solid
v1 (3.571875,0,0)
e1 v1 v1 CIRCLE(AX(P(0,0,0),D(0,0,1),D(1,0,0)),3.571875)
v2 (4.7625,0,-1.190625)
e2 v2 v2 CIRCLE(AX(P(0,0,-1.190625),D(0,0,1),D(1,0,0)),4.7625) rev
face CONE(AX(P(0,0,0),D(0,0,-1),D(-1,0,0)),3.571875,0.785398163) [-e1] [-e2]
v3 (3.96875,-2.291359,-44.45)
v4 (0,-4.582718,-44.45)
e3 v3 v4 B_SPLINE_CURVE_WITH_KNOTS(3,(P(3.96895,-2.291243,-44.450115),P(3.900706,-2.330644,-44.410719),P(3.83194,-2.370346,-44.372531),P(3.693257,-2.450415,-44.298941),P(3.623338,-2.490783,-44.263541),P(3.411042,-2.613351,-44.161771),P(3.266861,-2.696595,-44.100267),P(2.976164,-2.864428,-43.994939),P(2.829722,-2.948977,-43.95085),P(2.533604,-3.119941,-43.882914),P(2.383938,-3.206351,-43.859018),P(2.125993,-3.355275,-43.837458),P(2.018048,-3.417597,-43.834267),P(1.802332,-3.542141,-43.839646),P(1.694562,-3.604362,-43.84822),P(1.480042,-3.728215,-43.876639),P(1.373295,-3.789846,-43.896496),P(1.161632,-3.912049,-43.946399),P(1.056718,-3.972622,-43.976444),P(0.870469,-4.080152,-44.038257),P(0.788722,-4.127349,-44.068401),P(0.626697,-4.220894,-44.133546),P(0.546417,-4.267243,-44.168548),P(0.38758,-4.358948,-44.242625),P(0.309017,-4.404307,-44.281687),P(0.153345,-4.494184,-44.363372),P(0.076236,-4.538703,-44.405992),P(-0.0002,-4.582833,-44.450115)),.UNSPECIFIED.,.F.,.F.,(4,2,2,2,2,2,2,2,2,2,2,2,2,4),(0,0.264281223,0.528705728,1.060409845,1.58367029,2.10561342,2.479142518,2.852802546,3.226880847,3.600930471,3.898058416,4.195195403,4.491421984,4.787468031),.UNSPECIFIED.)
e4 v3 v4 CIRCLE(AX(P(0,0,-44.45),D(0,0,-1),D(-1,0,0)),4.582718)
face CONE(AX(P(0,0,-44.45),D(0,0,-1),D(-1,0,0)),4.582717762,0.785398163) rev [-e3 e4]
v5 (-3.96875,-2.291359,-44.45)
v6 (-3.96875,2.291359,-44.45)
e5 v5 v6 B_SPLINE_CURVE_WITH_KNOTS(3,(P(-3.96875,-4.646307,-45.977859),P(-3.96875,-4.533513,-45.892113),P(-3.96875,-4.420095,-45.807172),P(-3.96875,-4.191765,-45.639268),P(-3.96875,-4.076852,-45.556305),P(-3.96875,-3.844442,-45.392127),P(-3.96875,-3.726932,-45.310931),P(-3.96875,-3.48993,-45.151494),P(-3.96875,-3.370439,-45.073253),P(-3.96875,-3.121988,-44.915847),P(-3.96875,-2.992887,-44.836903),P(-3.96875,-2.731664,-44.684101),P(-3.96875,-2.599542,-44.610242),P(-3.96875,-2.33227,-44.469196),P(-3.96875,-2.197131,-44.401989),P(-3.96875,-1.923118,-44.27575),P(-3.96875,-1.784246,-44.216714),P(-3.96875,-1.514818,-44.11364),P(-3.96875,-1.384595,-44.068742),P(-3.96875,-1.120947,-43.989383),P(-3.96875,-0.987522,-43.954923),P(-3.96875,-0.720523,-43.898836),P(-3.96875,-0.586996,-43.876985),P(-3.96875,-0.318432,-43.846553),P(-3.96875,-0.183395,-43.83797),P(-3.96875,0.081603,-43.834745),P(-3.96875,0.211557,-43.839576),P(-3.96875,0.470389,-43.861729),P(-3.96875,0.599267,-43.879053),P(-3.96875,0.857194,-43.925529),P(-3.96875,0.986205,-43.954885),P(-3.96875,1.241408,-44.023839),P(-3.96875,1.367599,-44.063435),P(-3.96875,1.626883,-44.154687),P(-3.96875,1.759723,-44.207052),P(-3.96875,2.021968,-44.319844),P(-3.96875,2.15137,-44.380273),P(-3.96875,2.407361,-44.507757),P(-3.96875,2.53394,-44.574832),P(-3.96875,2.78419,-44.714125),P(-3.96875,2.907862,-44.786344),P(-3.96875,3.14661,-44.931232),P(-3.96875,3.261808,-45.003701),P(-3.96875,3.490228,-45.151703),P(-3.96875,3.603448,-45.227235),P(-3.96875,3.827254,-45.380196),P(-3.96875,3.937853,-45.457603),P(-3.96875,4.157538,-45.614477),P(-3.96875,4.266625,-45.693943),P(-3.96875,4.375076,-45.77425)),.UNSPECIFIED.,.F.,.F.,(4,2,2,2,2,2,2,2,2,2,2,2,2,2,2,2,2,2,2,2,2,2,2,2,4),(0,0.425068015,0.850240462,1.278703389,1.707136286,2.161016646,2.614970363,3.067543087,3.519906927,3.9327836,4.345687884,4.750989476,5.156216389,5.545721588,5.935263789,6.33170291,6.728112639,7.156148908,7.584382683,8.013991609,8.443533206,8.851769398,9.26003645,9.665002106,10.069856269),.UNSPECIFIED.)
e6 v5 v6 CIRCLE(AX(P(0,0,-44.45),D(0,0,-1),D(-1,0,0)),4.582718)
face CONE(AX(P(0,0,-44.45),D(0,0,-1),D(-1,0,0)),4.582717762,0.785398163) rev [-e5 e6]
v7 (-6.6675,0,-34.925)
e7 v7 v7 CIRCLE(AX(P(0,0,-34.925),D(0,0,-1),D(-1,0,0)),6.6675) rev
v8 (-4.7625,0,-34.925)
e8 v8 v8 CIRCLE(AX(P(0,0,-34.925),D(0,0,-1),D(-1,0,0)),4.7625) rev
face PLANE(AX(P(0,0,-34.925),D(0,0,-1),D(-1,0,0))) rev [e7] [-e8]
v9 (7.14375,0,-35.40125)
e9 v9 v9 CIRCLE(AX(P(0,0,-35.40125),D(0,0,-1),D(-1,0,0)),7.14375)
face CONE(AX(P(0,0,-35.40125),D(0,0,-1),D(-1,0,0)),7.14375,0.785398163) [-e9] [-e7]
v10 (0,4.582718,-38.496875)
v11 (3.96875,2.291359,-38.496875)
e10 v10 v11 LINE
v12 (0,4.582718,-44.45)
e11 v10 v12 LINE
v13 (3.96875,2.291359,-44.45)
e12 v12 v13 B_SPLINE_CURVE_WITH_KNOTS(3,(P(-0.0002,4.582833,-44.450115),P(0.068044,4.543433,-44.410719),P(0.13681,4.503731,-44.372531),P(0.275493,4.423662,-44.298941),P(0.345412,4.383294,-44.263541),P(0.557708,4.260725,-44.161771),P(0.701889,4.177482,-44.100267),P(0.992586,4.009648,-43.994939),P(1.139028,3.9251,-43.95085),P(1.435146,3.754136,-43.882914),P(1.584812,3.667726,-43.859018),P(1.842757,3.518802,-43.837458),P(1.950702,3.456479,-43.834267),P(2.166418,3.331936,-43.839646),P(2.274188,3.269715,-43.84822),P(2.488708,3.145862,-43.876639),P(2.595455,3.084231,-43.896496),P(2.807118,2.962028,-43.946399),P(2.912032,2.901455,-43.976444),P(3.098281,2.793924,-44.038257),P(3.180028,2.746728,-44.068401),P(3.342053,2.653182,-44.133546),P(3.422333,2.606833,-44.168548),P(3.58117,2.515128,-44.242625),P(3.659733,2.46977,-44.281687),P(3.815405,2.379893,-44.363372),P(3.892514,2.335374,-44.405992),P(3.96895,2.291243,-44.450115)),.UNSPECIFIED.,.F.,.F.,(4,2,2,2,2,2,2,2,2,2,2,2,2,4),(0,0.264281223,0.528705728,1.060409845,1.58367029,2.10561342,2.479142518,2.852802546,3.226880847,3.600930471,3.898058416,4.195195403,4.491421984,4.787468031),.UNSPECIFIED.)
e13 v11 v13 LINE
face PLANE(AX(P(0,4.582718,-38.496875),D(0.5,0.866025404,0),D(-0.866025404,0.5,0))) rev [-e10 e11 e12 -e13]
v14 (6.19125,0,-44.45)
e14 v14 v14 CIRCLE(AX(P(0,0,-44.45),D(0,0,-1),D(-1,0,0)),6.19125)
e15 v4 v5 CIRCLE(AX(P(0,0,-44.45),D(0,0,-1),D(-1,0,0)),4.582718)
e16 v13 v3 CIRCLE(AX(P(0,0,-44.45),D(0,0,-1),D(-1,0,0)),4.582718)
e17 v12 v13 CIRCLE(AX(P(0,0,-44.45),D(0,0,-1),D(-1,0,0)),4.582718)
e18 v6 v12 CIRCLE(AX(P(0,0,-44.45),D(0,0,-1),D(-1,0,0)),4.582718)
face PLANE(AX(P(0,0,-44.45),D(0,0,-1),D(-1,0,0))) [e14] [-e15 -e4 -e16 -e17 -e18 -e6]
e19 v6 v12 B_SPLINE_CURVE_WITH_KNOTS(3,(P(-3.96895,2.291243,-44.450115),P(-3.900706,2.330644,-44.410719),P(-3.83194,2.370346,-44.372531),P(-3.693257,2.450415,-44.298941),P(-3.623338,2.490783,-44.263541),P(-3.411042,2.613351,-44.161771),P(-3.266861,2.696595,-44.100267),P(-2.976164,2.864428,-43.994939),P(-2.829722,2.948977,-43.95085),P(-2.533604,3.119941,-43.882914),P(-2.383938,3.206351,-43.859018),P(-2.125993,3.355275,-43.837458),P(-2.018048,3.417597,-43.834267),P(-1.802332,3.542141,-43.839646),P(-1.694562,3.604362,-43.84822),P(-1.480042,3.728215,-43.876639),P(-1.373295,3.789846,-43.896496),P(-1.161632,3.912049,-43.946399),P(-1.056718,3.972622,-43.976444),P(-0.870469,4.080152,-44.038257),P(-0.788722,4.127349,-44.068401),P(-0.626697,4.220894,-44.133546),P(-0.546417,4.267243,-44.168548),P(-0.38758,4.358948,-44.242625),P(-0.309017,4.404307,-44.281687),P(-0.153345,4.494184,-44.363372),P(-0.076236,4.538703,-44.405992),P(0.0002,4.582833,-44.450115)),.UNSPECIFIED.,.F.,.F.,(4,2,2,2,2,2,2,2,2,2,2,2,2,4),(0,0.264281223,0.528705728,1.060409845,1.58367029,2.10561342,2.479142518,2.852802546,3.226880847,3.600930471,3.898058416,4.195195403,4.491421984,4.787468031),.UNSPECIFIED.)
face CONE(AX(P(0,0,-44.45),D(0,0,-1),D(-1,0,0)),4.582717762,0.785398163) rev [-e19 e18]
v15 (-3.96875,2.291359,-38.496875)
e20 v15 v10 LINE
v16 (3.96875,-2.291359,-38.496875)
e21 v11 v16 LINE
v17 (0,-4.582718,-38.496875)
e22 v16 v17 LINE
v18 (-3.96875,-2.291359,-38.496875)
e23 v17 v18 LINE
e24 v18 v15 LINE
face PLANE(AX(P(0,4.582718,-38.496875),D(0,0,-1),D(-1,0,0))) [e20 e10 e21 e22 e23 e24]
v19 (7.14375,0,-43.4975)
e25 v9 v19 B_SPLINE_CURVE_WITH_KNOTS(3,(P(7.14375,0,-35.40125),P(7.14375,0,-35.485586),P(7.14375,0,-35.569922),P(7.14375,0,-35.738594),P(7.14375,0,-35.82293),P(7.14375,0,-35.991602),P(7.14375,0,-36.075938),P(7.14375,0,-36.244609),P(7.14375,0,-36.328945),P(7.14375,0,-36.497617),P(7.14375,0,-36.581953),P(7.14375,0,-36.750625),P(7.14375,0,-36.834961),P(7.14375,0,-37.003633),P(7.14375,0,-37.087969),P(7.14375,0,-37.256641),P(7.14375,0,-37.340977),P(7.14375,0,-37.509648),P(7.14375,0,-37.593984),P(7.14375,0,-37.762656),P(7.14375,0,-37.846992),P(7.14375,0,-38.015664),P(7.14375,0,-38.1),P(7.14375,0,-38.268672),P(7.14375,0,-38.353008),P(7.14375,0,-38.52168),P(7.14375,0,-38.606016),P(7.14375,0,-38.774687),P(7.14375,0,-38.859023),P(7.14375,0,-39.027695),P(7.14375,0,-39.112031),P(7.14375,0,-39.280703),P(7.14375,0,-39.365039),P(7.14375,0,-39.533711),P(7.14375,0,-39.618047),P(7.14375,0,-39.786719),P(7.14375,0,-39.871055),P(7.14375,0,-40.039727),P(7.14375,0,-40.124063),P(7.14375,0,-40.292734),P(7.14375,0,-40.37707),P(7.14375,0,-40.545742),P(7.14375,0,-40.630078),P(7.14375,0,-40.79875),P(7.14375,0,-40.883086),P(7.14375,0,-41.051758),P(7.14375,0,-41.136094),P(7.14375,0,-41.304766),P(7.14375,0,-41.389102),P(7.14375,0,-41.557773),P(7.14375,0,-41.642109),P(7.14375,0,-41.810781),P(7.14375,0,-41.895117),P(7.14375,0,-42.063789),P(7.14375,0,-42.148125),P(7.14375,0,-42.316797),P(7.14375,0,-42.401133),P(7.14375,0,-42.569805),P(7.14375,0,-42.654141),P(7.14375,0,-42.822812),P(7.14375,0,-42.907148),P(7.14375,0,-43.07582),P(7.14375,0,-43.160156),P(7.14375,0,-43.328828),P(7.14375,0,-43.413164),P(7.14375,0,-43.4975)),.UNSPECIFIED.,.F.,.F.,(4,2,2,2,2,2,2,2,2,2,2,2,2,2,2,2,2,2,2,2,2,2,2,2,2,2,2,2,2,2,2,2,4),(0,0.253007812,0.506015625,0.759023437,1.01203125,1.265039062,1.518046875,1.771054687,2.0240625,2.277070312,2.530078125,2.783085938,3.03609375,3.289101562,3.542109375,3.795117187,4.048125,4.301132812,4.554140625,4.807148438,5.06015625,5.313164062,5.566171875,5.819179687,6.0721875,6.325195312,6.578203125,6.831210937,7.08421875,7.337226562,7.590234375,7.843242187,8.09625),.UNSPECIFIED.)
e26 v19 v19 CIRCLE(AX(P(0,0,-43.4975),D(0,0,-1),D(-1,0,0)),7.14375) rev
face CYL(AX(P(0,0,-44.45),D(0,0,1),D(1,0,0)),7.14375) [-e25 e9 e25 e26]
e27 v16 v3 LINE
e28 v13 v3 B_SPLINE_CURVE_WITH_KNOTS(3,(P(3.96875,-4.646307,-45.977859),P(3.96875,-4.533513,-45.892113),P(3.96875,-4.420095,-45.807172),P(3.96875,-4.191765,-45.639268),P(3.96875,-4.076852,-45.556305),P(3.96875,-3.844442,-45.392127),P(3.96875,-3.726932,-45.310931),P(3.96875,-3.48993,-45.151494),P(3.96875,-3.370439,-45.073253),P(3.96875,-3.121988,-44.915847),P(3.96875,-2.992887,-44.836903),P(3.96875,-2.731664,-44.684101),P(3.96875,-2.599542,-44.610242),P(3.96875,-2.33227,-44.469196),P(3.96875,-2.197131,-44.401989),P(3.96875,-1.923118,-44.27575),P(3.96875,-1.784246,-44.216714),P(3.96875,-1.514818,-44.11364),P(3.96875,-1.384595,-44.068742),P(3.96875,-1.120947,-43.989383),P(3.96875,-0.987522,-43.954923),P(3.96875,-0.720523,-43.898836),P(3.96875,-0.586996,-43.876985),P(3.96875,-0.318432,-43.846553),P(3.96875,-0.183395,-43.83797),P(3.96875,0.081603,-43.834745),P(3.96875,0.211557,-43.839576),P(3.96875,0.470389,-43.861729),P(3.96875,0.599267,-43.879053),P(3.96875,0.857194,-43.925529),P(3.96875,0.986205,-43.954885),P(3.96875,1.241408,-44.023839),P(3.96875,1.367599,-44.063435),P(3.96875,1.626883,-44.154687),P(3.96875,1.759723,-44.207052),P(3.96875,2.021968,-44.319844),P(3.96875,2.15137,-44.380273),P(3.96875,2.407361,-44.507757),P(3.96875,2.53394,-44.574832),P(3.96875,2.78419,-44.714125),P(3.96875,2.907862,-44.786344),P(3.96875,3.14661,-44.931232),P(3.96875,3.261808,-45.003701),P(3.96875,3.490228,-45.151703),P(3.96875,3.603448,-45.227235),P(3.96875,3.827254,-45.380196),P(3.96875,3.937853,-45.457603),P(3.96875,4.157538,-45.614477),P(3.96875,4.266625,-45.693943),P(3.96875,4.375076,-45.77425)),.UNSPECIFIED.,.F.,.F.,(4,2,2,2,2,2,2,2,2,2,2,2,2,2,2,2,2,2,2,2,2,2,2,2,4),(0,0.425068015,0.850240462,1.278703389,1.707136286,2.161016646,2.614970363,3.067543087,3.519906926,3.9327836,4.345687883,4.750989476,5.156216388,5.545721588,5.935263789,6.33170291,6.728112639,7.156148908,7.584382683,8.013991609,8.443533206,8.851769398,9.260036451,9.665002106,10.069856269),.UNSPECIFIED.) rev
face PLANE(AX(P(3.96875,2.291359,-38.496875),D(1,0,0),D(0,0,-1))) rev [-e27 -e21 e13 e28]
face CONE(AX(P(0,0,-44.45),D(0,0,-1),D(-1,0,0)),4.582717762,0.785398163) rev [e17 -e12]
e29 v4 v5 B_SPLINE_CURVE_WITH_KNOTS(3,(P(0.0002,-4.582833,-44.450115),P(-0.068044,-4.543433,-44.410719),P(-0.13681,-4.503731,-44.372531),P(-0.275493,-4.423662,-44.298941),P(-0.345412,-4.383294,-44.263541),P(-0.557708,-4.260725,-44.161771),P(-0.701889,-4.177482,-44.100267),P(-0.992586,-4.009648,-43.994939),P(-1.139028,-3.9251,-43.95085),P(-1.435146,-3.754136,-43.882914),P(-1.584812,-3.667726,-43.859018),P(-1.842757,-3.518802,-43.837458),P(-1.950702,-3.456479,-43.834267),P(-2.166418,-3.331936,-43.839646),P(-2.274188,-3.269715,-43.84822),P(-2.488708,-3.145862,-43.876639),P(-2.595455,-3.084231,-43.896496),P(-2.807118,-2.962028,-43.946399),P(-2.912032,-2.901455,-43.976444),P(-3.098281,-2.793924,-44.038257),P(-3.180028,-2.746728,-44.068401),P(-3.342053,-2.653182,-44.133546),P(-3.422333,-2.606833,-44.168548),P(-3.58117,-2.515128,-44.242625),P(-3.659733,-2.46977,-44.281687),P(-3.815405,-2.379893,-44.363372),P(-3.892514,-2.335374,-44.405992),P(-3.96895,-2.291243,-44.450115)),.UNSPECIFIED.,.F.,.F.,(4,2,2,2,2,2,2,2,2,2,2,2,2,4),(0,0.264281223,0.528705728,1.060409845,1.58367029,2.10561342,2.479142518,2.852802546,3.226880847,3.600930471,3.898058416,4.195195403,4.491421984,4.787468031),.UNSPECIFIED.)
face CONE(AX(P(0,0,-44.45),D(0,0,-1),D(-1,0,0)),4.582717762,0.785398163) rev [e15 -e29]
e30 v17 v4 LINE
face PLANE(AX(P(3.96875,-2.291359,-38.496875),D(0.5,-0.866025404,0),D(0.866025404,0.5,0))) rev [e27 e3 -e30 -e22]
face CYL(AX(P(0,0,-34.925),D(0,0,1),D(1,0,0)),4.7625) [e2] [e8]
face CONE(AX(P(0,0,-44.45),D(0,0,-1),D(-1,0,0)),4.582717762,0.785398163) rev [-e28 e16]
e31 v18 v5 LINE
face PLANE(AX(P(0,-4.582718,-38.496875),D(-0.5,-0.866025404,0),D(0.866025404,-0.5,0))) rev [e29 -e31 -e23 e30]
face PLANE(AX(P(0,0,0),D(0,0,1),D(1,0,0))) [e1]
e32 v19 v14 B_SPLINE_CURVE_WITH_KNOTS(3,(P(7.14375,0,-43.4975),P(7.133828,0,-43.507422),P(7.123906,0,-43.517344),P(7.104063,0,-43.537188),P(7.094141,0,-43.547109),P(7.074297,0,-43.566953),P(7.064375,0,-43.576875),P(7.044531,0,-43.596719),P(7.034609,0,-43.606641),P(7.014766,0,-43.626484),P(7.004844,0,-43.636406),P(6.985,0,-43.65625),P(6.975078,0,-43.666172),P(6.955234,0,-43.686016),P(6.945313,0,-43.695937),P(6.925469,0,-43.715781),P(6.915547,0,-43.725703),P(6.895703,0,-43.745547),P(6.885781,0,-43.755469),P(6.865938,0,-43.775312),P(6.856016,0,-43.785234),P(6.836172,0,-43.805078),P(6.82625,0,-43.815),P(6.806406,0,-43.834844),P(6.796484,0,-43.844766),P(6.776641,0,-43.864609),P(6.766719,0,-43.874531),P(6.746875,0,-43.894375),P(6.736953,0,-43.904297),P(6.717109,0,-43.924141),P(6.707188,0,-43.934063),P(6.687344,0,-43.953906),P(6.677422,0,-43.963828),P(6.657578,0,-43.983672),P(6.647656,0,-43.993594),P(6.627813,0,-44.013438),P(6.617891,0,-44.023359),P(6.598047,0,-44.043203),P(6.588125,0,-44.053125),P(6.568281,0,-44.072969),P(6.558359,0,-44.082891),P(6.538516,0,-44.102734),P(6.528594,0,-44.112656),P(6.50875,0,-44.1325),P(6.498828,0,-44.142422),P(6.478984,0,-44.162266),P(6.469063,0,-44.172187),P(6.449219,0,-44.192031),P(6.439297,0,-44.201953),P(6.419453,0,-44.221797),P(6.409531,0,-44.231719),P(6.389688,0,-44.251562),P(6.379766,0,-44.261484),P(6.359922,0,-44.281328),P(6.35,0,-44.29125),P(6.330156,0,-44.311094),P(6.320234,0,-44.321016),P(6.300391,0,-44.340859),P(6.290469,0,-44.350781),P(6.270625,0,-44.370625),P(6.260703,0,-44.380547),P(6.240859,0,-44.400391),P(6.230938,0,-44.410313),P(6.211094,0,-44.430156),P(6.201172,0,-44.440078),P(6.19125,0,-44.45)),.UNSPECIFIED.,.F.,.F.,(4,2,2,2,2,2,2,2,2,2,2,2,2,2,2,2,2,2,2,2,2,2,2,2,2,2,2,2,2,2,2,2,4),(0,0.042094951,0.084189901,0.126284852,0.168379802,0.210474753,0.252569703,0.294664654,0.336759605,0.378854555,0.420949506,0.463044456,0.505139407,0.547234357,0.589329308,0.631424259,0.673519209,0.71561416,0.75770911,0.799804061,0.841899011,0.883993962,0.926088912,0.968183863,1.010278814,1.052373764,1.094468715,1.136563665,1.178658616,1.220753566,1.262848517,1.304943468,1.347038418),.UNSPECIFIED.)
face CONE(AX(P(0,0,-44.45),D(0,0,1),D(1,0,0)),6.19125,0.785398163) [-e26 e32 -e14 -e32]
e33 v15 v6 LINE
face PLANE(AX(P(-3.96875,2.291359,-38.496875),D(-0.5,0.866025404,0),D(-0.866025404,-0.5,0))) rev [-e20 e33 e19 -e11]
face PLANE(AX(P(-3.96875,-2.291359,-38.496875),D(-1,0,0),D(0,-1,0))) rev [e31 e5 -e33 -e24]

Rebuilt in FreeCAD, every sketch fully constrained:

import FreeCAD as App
import Part
import Sketcher

V = App.Vector
Q = App.Units.Quantity


def edges_at(feature, points):
    """Names of the edges that pass closest to the given points."""
    edges = feature.Shape.Edges
    near = lambda p: min(range(len(edges)), key=lambda i: edges[i].distToShape(Part.Vertex(*p))[0])
    return sorted({f"Edge{near(p) + 1}" for p in points})


def faces_at(feature, points):
    """Names of the faces that lie closest to the given points."""
    faces = feature.Shape.Faces
    near = lambda p: min(range(len(faces)), key=lambda i: faces[i].distToShape(Part.Vertex(*p))[0])
    return sorted({f"Face{near(p) + 1}" for p in points})

doc = App.newDocument("Part")
body = doc.addObject("PartDesign::Body", "Body")

# Sketch on XY plane
sketch1 = body.newObject("Sketcher::SketchObject", "Sketch")
sketch1.AttachmentSupport = (doc.getObject("XY_Plane"), [""])
sketch1.MapMode = "FlatFace"
sketch1.addGeometry(Part.Circle(V(0, 0, 0), V(0, 0, 1), 4.8), False)
sketch1.addConstraint(Sketcher.Constraint("Coincident", 0, 3, -1, 1))
sketch1.addConstraint(Sketcher.Constraint("Diameter", 0, Q("0.375 in")))
pad1 = body.newObject("PartDesign::Pad", "Pad")
pad1.Profile = sketch1
pad1.Length = Q("1.375 in")
pad1.Reversed = True

# Sketch on XY plane
sketch2 = body.newObject("Sketcher::SketchObject", "Sketch001")
sketch2.AttachmentSupport = (doc.getObject("XY_Plane"), [""])
sketch2.MapMode = "FlatFace"
sketch2.AttachmentOffset = App.Placement(V(0, 0, -1.375 * 25.4), App.Rotation())
sketch2.addGeometry(Part.Circle(V(0, 0, 0), V(0, 0, 1), 7), False)
sketch2.addConstraint(Sketcher.Constraint("Coincident", 0, 3, -1, 1))
sketch2.addConstraint(Sketcher.Constraint("Diameter", 0, Q("0.5625 in")))
pad2 = body.newObject("PartDesign::Pad", "Pad001")
pad2.Profile = sketch2
pad2.Length = Q("0.375 in")
pad2.Reversed = True

# Sketch on XY plane
sketch3 = body.newObject("Sketcher::SketchObject", "Sketch002")
sketch3.AttachmentSupport = (doc.getObject("XY_Plane"), [""])
sketch3.MapMode = "FlatFace"
sketch3.AttachmentOffset = App.Placement(V(0, 0, -1.75 * 25.4), App.Rotation())
sketch3.addGeometry(Part.LineSegment(V(0, 4.6, 0), V(4, 2.3, 0)), False)
sketch3.addGeometry(Part.LineSegment(V(4, 2.3, 0), V(4, -2.3, 0)), False)
sketch3.addGeometry(Part.LineSegment(V(4, -2.3, 0), V(0, -4.6, 0)), False)
sketch3.addGeometry(Part.LineSegment(V(0, -4.6, 0), V(-4, -2.3, 0)), False)
sketch3.addGeometry(Part.LineSegment(V(-4, -2.3, 0), V(-4, 2.3, 0)), False)
sketch3.addGeometry(Part.LineSegment(V(-4, 2.3, 0), V(0, 4.6, 0)), False)
sketch3.addConstraint(Sketcher.Constraint("Coincident", 0, 2, 1, 1))
sketch3.addConstraint(Sketcher.Constraint("Coincident", 1, 2, 2, 1))
sketch3.addConstraint(Sketcher.Constraint("Coincident", 2, 2, 3, 1))
sketch3.addConstraint(Sketcher.Constraint("Coincident", 3, 2, 4, 1))
sketch3.addConstraint(Sketcher.Constraint("Coincident", 4, 2, 5, 1))
sketch3.addConstraint(Sketcher.Constraint("Coincident", 5, 2, 0, 1))
sketch3.addConstraint(Sketcher.Constraint("Vertical", 1))
sketch3.addConstraint(Sketcher.Constraint("Vertical", 4))
sketch3.addConstraint(Sketcher.Constraint("Symmetric", 0, 2, 3, 2, -1, 1))
sketch3.addConstraint(Sketcher.Constraint("Symmetric", 2, 2, 5, 2, -1, 1))
sketch3.addConstraint(Sketcher.Constraint("PointOnObject", 2, 2, -2))
sketch3.addConstraint(Sketcher.Constraint("Parallel", 2, 5))
sketch3.addConstraint(Sketcher.Constraint("Horizontal", 1, 2, 3, 2))
sketch3.addConstraint(Sketcher.Constraint("Angle", 0, Q("-30 deg")))
sketch3.addConstraint(Sketcher.Constraint("DistanceX", -1, 1, 0, 2, Q("0.15625 in")))
sketch3.addConstraint(Sketcher.Constraint("DistanceY", 1, 2, 1, 1, 4.582718))
pocket1 = body.newObject("PartDesign::Pocket", "Pocket")
pocket1.Profile = sketch3
pocket1.Length = Q("0.234375 in")
pocket1.Reversed = True
body2 = doc.addObject("PartDesign::Body", "Body001")

# Sketch on XY plane
sketch4 = body2.newObject("Sketcher::SketchObject", "Sketch003")
sketch4.AttachmentSupport = (doc.getObject("XY_Plane001"), [""])
sketch4.MapMode = "FlatFace"
sketch4.AttachmentOffset = App.Placement(V(0, 0, -1.75 * 25.4), App.Rotation())
sketch4.addGeometry(Part.Circle(V(0, 0, 0), V(0, 0, 1), 4.6), False)
sketch4.addConstraint(Sketcher.Constraint("Coincident", 0, 3, -1, 1))
sketch4.addConstraint(Sketcher.Constraint("Diameter", 0, 9.165436))
pad3 = body2.newObject("PartDesign::Pad", "Pad002")
pad3.Profile = sketch4
pad3.Length = Q("0.0375 in")
doc.recompute()

datumplane = body2.newObject("PartDesign::Plane", "DatumPlane")
datumplane.AttachmentSupport = (doc.getObject("XY_Plane001"), [""])
datumplane.MapMode = "FlatFace"
datumplane.AttachmentOffset = App.Placement(V(0, 0, -1.75 * 25.4), App.Rotation())
draft = body2.newObject("PartDesign::Draft", "Draft")
draft.Base = (pad3, faces_at(pad3, [(4.583, 0, -43.974)]))
draft.NeutralPlane = (datumplane, [""])
draft.Angle = 45
draft.Reversed = False
doc.recompute()

boolean = body.newObject("PartDesign::Boolean", "Boolean")
boolean.Type = "Cut"
boolean.addObjects([body2])
doc.recompute()

chamfer = body.newObject("PartDesign::Chamfer", "Chamfer")
chamfer.Base = (boolean, edges_at(boolean, [(-7.144, 0, -44.45)]))
chamfer.Size = Q("0.0375 in")
doc.recompute()

chamfer2 = body.newObject("PartDesign::Chamfer", "Chamfer001")
chamfer2.Base = (chamfer, edges_at(chamfer, [(-7.144, 0, -34.925)]))
chamfer2.Size = 0.47625
doc.recompute()

chamfer3 = body.newObject("PartDesign::Chamfer", "Chamfer002")
chamfer3.Base = (chamfer2, edges_at(chamfer2, [(-4.763, 0, 0)]))
chamfer3.Size = Q("0.046875 in")

doc.recompute()
